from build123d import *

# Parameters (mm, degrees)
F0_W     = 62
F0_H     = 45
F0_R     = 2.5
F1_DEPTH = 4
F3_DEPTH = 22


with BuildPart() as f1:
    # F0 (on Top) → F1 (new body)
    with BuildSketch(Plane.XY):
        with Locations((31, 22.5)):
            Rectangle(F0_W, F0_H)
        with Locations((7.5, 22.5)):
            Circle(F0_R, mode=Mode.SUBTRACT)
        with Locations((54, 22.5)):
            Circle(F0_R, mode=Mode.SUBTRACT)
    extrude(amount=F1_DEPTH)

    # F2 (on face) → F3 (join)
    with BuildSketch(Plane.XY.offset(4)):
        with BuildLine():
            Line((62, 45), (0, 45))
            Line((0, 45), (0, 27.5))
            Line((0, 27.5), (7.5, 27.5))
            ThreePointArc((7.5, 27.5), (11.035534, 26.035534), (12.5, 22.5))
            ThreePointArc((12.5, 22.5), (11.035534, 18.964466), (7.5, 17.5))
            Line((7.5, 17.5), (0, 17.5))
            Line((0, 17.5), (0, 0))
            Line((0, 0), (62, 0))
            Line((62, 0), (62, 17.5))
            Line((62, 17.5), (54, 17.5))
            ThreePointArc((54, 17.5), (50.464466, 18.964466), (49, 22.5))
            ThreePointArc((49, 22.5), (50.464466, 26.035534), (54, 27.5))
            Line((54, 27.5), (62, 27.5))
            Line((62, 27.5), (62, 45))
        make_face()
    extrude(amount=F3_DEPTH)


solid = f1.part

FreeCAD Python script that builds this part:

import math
import FreeCAD as App
import Part
import Sketcher

doc = App.newDocument("Part")
body = doc.addObject("PartDesign::Body", "Body")

sketch1 = body.newObject("Sketcher::SketchObject", "Sketch")
sketch1.AttachmentSupport = (doc.getObject("XY_Plane"), [""])
sketch1.MapMode = "FlatFace"
sketch1.addGeometry(Part.LineSegment(App.Vector(0, 45, 0), App.Vector(0, 0, 0)), False)
sketch1.addGeometry(Part.LineSegment(App.Vector(0, 0, 0), App.Vector(62, 0, 0)), False)
sketch1.addGeometry(Part.LineSegment(App.Vector(62, 0, 0), App.Vector(62, 45, 0)), False)
sketch1.addGeometry(Part.LineSegment(App.Vector(62, 45, 0), App.Vector(0, 45, 0)), False)
sketch1.addGeometry(Part.Circle(App.Vector(7.5, 22.5, 0), App.Vector(0, 0, 1), 2.5), False)
sketch1.addGeometry(Part.Circle(App.Vector(54, 22.5, 0), App.Vector(0, 0, 1), 2.5), False)
sketch1.addConstraint(Sketcher.Constraint("Coincident", 0, 2, 1, 1))
sketch1.addConstraint(Sketcher.Constraint("Coincident", 1, 2, 2, 1))
sketch1.addConstraint(Sketcher.Constraint("Coincident", 2, 2, 3, 1))
sketch1.addConstraint(Sketcher.Constraint("Coincident", 3, 2, 0, 1))
sketch1.addConstraint(Sketcher.Constraint("Vertical", 0))
sketch1.addConstraint(Sketcher.Constraint("Horizontal", 1))
sketch1.addConstraint(Sketcher.Constraint("Vertical", 2))
sketch1.addConstraint(Sketcher.Constraint("Horizontal", 3))
sketch1.addConstraint(Sketcher.Constraint("Coincident", 0, 2, -1, 1))
sketch1.addConstraint(Sketcher.Constraint("Equal", 4, 5))
sketch1.addConstraint(Sketcher.Constraint("Horizontal", 4, 3, 5, 3))
sketch1.addConstraint(Sketcher.Constraint("Diameter", 4, 5.0))
sketch1.addConstraint(Sketcher.Constraint("DistanceX", 1, 1, 1, 2, 62.0))
sketch1.addConstraint(Sketcher.Constraint("DistanceY", 0, 2, 0, 1, 45.0))
sketch1.addConstraint(Sketcher.Constraint("DistanceX", -1, 1, 5, 3, 54.0))
sketch1.addConstraint(Sketcher.Constraint("DistanceX", -1, 1, 4, 3, 7.5))
sketch1.addConstraint(Sketcher.Constraint("DistanceY", -1, 1, 4, 3, 22.5))
pad1 = body.newObject("PartDesign::Pad", "Pad")
pad1.Profile = sketch1
pad1.Length = 4

sketch2 = body.newObject("Sketcher::SketchObject", "Sketch001")
sketch2.AttachmentSupport = (doc.getObject("XY_Plane"), [""])
sketch2.MapMode = "FlatFace"
sketch2.AttachmentOffset = App.Placement(App.Vector(0, 0, 4), App.Rotation())
sketch2.addGeometry(Part.LineSegment(App.Vector(62, 45, 0), App.Vector(0, 45, 0)), False)
sketch2.addGeometry(Part.LineSegment(App.Vector(0, 45, 0), App.Vector(0, 27.5, 0)), False)
sketch2.addGeometry(Part.LineSegment(App.Vector(0, 27.5, 0), App.Vector(7.5, 27.5, 0)), False)
sketch2.addGeometry(Part.ArcOfCircle(Part.Circle(App.Vector(7.5, 22.5, 0), App.Vector(0, 0, 1), 5), math.radians(0), math.radians(90)), False)
sketch2.addGeometry(Part.ArcOfCircle(Part.Circle(App.Vector(7.5, 22.5, 0), App.Vector(0, 0, 1), 5), math.radians(-90), math.radians(0)), False)
sketch2.addGeometry(Part.LineSegment(App.Vector(7.5, 17.5, 0), App.Vector(0, 17.5, 0)), False)
sketch2.addGeometry(Part.LineSegment(App.Vector(0, 17.5, 0), App.Vector(0, 0, 0)), False)
sketch2.addGeometry(Part.LineSegment(App.Vector(0, 0, 0), App.Vector(62, 0, 0)), False)
sketch2.addGeometry(Part.LineSegment(App.Vector(62, 0, 0), App.Vector(62, 17.5, 0)), False)
sketch2.addGeometry(Part.LineSegment(App.Vector(62, 17.5, 0), App.Vector(54, 17.5, 0)), False)
sketch2.addGeometry(Part.ArcOfCircle(Part.Circle(App.Vector(54, 22.5, 0), App.Vector(0, 0, 1), 5), math.radians(180), math.radians(270)), False)
sketch2.addGeometry(Part.ArcOfCircle(Part.Circle(App.Vector(54, 22.5, 0), App.Vector(0, 0, 1), 5), math.radians(90), math.radians(180)), False)
sketch2.addGeometry(Part.LineSegment(App.Vector(54, 27.5, 0), App.Vector(62, 27.5, 0)), False)
sketch2.addGeometry(Part.LineSegment(App.Vector(62, 27.5, 0), App.Vector(62, 45, 0)), False)
sketch2.addConstraint(Sketcher.Constraint("Coincident", 0, 2, 1, 1))
sketch2.addConstraint(Sketcher.Constraint("Coincident", 1, 2, 2, 1))
sketch2.addConstraint(Sketcher.Constraint("Tangent", 2, 2, 3, 2))
sketch2.addConstraint(Sketcher.Constraint("Tangent", 3, 1, 4, 2))
sketch2.addConstraint(Sketcher.Constraint("Tangent", 4, 1, 5, 1))
sketch2.addConstraint(Sketcher.Constraint("Coincident", 5, 2, 6, 1))
sketch2.addConstraint(Sketcher.Constraint("Coincident", 6, 2, 7, 1))
sketch2.addConstraint(Sketcher.Constraint("Coincident", 7, 2, 8, 1))
sketch2.addConstraint(Sketcher.Constraint("Coincident", 8, 2, 9, 1))
sketch2.addConstraint(Sketcher.Constraint("Tangent", 9, 2, 10, 2))
sketch2.addConstraint(Sketcher.Constraint("Tangent", 10, 1, 11, 2))
sketch2.addConstraint(Sketcher.Constraint("Tangent", 11, 1, 12, 1))
sketch2.addConstraint(Sketcher.Constraint("Coincident", 12, 2, 13, 1))
sketch2.addConstraint(Sketcher.Constraint("Coincident", 13, 2, 0, 1))
sketch2.addConstraint(Sketcher.Constraint("Horizontal", 0))
sketch2.addConstraint(Sketcher.Constraint("Vertical", 1))
sketch2.addConstraint(Sketcher.Constraint("Horizontal", 2))
sketch2.addConstraint(Sketcher.Constraint("Horizontal", 5))
sketch2.addConstraint(Sketcher.Constraint("Vertical", 6))
sketch2.addConstraint(Sketcher.Constraint("Horizontal", 7))
sketch2.addConstraint(Sketcher.Constraint("Vertical", 8))
sketch2.addConstraint(Sketcher.Constraint("Horizontal", 9))
sketch2.addConstraint(Sketcher.Constraint("Horizontal", 12))
sketch2.addConstraint(Sketcher.Constraint("Vertical", 13))
sketch2.addConstraint(Sketcher.Constraint("Coincident", 6, 2, -1, 1))
sketch2.addConstraint(Sketcher.Constraint("Equal", 3, 4))
sketch2.addConstraint(Sketcher.Constraint("Equal", 4, 10))
sketch2.addConstraint(Sketcher.Constraint("Equal", 10, 11))
sketch2.addConstraint(Sketcher.Constraint("PointOnObject", 0, 2, -2))
sketch2.addConstraint(Sketcher.Constraint("Horizontal", 4, 3, 10, 3))
sketch2.addConstraint(Sketcher.Constraint("Horizontal", 11, 3, 3, 1))
sketch2.addConstraint(Sketcher.Constraint("Horizontal", 3, 1, 10, 1))
sketch2.addConstraint(Sketcher.Constraint("Vertical", 8, 2, 12, 2))
sketch2.addConstraint(Sketcher.Constraint("Equal", 1, 6))
sketch2.addConstraint(Sketcher.Constraint("Radius", 3, 5.0))
sketch2.addConstraint(Sketcher.Constraint("DistanceX", 0, 2, 0, 1, 62.0))
sketch2.addConstraint(Sketcher.Constraint("DistanceX", 9, 2, 9, 1, 8.0))
sketch2.addConstraint(Sketcher.Constraint("DistanceX", 2, 1, 2, 2, 7.5))
sketch2.addConstraint(Sketcher.Constraint("DistanceY", 1, 2, 1, 1, 17.5))
pad2 = body.newObject("PartDesign::Pad", "Pad001")
pad2.Profile = sketch2
pad2.Length = 22

doc.recompute()
